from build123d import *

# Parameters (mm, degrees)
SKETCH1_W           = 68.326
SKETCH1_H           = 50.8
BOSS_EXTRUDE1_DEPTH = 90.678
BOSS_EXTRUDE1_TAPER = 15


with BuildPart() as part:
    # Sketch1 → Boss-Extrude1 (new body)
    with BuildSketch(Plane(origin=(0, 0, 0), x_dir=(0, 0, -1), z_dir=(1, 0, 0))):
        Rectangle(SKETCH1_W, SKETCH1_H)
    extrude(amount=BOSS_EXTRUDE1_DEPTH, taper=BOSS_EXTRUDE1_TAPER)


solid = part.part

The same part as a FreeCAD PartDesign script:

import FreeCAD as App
import Part
import Sketcher

V = App.Vector
Q = App.Units.Quantity

doc = App.newDocument("Part")
params = doc.addObject("Spreadsheet::Sheet", "Params")
for row, (alias, value) in enumerate([
    ("sketch1_width", "2 in"),
    ("sketch1_height", "2.69 in"),
    ("pad1_length", "3.57 in"),
    ("pad1_taper", "-15 deg"),
], start=1):
    params.set(f"A{row}", alias)
    params.set(f"B{row}", "=" + value)
    params.setAlias(f"B{row}", alias)

body = doc.addObject("PartDesign::Body", "Body")

sketch1 = body.newObject("Sketcher::SketchObject", "Sketch")
sketch1.AttachmentSupport = (doc.getObject("YZ_Plane"), [""])
sketch1.MapMode = "FlatFace"
sketch1.addGeometry(Part.LineSegment(V(25, 34, 0), V(-25, 34, 0)), False)
sketch1.addGeometry(Part.LineSegment(V(-25, 34, 0), V(-25, -34, 0)), False)
sketch1.addGeometry(Part.LineSegment(V(-25, -34, 0), V(25, -34, 0)), False)
sketch1.addGeometry(Part.LineSegment(V(25, -34, 0), V(25, 34, 0)), False)
sketch1.addConstraint(Sketcher.Constraint("Coincident", 0, 2, 1, 1))
sketch1.addConstraint(Sketcher.Constraint("Coincident", 1, 2, 2, 1))
sketch1.addConstraint(Sketcher.Constraint("Coincident", 2, 2, 3, 1))
sketch1.addConstraint(Sketcher.Constraint("Coincident", 3, 2, 0, 1))
sketch1.addConstraint(Sketcher.Constraint("Horizontal", 0))
sketch1.addConstraint(Sketcher.Constraint("Vertical", 1))
sketch1.addConstraint(Sketcher.Constraint("Horizontal", 2))
sketch1.addConstraint(Sketcher.Constraint("Vertical", 3))
sketch1.addConstraint(Sketcher.Constraint("Symmetric", 0, 2, 2, 2, -1, 1))
sketch1.addConstraint(Sketcher.Constraint("DistanceX", 0, 2, 0, 1, Q("2 in")))
sketch1.addConstraint(Sketcher.Constraint("DistanceY", 1, 2, 1, 1, Q("2.69 in")))
sketch1.setExpression("Constraints[9]", "Params.sketch1_width")
sketch1.setExpression("Constraints[10]", "Params.sketch1_height")
pad1 = body.newObject("PartDesign::Pad", "Pad")
pad1.Profile = sketch1
pad1.setExpression("Length", "Params.pad1_length")
pad1.setExpression("TaperAngle", "Params.pad1_taper")

doc.recompute()
